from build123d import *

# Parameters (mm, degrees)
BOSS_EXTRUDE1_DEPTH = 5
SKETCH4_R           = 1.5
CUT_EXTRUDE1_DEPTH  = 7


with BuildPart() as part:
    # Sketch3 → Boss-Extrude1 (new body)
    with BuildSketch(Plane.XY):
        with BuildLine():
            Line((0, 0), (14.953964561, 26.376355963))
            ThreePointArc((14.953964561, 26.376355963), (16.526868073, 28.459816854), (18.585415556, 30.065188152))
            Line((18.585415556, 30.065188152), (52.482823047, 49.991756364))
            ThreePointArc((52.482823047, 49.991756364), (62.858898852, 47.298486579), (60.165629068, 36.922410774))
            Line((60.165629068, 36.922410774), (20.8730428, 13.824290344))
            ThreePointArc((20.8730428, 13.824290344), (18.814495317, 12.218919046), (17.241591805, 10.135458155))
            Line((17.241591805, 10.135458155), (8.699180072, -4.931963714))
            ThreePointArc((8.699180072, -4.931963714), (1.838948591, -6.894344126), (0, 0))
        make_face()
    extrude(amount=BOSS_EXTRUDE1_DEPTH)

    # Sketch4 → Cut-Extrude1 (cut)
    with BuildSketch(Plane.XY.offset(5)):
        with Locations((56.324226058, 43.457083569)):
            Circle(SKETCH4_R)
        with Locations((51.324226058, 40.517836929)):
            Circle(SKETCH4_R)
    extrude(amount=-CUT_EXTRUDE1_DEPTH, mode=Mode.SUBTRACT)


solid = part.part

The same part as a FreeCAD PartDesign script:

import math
import FreeCAD as App
import Part
import Sketcher
from FreeCAD import Vector

doc = App.newDocument("Part")
body = doc.addObject("PartDesign::Body", "Body")

sketch1 = doc.addObject("Sketcher::SketchObject", "Sketch")
body.addObject(sketch1)
sketch1.AttachmentSupport = (doc.XY_Plane, [""])
sketch1.MapMode = "FlatFace"
sketch1.addGeometry([
    Part.LineSegment(Vector(15, 26, 0), Vector(0, 0, 0)),
    Part.ArcOfCircle(Part.Circle(Vector(4, -3, 0), Vector(0, 0, 1), 5), math.radians(149), math.radians(331)),
    Part.LineSegment(Vector(9, -5, 0), Vector(17, 10, 0)),
    Part.ArcOfCircle(Part.Circle(Vector(26, 5, 0), Vector(0, 0, 1), 10), math.radians(120), math.radians(150)),
    Part.LineSegment(Vector(21, 14, 0), Vector(60, 37, 0)),
    Part.ArcOfCircle(Part.Circle(Vector(56, 43, 0), Vector(0, 0, 1), 8), math.radians(-60), math.radians(120)),
    Part.LineSegment(Vector(52, 50, 0), Vector(19, 30, 0)),
    Part.ArcOfCircle(Part.Circle(Vector(24, 21, 0), Vector(0, 0, 1), 10), math.radians(120), math.radians(150)),
], False)
sketch1.addConstraint([
    Sketcher.Constraint("Coincident", 0, 2, 1, 1),
    Sketcher.Constraint("Coincident", 1, 2, 2, 1),
    Sketcher.Constraint("Tangent", 2, 2, 3, 2),
    Sketcher.Constraint("Tangent", 3, 1, 4, 1),
    Sketcher.Constraint("Tangent", 4, 2, 5, 1),
    Sketcher.Constraint("Tangent", 5, 2, 6, 1),
    Sketcher.Constraint("Tangent", 6, 2, 7, 1),
    Sketcher.Constraint("Tangent", 7, 2, 0, 1),
    Sketcher.Constraint("Coincident", 0, 2, -1, 1),
    Sketcher.Constraint("Equal", 3, 7),
    Sketcher.Constraint("Parallel", 0, 2),
    Sketcher.Constraint("Parallel", 4, 6),
    Sketcher.Constraint("Radius", 3, 10.0),
    Sketcher.Constraint("Radius", 1, 5.000805),
    Sketcher.Constraint("Radius", 5, 7.580127),
    Sketcher.Constraint("DistanceX", 1, 3, 5, 3, 52.018898),
    Sketcher.Constraint("DistanceX", 3, 1, 7, 3, 2.780102),
    Sketcher.Constraint("DistanceY", 3, 1, 7, 3, 7.620102),
    Sketcher.Constraint("Distance", 0, 30.320508),
    Sketcher.Constraint("Distance", 2, 17.320508),
    Sketcher.Constraint("Distance", 4, 45.578838),
])
pad1 = doc.addObject("PartDesign::Pad", "Pad")
body.addObject(pad1)
pad1.Profile = sketch1
pad1.Length = 5

sketch2 = doc.addObject("Sketcher::SketchObject", "Sketch001")
body.addObject(sketch2)
sketch2.AttachmentSupport = (doc.XY_Plane, [""])
sketch2.MapMode = "FlatFace"
sketch2.AttachmentOffset = App.Placement(Vector(0, 0, 5), App.Rotation())
sketch2.addGeometry([
    Part.Circle(Vector(56.3, 43.5, 0), Vector(0, 0, 1), 1.5),
    Part.Circle(Vector(51.3, 40.5, 0), Vector(0, 0, 1), 1.5),
], False)
sketch2.addConstraint([
    Sketcher.Constraint("Equal", 0, 1),
    Sketcher.Constraint("Diameter", 0, 3.0),
    Sketcher.Constraint("DistanceX", 1, 3, 0, 3, 5.0),
    Sketcher.Constraint("DistanceX", -1, 1, 0, 3, 56.324226),
    Sketcher.Constraint("DistanceY", -1, 1, 0, 3, 43.457084),
    Sketcher.Constraint("DistanceY", -1, 1, 1, 3, 40.517837),
])
pocket1 = doc.addObject("PartDesign::Pocket", "Pocket")
body.addObject(pocket1)
pocket1.Profile = sketch2
pocket1.Length = 7

doc.recompute()
